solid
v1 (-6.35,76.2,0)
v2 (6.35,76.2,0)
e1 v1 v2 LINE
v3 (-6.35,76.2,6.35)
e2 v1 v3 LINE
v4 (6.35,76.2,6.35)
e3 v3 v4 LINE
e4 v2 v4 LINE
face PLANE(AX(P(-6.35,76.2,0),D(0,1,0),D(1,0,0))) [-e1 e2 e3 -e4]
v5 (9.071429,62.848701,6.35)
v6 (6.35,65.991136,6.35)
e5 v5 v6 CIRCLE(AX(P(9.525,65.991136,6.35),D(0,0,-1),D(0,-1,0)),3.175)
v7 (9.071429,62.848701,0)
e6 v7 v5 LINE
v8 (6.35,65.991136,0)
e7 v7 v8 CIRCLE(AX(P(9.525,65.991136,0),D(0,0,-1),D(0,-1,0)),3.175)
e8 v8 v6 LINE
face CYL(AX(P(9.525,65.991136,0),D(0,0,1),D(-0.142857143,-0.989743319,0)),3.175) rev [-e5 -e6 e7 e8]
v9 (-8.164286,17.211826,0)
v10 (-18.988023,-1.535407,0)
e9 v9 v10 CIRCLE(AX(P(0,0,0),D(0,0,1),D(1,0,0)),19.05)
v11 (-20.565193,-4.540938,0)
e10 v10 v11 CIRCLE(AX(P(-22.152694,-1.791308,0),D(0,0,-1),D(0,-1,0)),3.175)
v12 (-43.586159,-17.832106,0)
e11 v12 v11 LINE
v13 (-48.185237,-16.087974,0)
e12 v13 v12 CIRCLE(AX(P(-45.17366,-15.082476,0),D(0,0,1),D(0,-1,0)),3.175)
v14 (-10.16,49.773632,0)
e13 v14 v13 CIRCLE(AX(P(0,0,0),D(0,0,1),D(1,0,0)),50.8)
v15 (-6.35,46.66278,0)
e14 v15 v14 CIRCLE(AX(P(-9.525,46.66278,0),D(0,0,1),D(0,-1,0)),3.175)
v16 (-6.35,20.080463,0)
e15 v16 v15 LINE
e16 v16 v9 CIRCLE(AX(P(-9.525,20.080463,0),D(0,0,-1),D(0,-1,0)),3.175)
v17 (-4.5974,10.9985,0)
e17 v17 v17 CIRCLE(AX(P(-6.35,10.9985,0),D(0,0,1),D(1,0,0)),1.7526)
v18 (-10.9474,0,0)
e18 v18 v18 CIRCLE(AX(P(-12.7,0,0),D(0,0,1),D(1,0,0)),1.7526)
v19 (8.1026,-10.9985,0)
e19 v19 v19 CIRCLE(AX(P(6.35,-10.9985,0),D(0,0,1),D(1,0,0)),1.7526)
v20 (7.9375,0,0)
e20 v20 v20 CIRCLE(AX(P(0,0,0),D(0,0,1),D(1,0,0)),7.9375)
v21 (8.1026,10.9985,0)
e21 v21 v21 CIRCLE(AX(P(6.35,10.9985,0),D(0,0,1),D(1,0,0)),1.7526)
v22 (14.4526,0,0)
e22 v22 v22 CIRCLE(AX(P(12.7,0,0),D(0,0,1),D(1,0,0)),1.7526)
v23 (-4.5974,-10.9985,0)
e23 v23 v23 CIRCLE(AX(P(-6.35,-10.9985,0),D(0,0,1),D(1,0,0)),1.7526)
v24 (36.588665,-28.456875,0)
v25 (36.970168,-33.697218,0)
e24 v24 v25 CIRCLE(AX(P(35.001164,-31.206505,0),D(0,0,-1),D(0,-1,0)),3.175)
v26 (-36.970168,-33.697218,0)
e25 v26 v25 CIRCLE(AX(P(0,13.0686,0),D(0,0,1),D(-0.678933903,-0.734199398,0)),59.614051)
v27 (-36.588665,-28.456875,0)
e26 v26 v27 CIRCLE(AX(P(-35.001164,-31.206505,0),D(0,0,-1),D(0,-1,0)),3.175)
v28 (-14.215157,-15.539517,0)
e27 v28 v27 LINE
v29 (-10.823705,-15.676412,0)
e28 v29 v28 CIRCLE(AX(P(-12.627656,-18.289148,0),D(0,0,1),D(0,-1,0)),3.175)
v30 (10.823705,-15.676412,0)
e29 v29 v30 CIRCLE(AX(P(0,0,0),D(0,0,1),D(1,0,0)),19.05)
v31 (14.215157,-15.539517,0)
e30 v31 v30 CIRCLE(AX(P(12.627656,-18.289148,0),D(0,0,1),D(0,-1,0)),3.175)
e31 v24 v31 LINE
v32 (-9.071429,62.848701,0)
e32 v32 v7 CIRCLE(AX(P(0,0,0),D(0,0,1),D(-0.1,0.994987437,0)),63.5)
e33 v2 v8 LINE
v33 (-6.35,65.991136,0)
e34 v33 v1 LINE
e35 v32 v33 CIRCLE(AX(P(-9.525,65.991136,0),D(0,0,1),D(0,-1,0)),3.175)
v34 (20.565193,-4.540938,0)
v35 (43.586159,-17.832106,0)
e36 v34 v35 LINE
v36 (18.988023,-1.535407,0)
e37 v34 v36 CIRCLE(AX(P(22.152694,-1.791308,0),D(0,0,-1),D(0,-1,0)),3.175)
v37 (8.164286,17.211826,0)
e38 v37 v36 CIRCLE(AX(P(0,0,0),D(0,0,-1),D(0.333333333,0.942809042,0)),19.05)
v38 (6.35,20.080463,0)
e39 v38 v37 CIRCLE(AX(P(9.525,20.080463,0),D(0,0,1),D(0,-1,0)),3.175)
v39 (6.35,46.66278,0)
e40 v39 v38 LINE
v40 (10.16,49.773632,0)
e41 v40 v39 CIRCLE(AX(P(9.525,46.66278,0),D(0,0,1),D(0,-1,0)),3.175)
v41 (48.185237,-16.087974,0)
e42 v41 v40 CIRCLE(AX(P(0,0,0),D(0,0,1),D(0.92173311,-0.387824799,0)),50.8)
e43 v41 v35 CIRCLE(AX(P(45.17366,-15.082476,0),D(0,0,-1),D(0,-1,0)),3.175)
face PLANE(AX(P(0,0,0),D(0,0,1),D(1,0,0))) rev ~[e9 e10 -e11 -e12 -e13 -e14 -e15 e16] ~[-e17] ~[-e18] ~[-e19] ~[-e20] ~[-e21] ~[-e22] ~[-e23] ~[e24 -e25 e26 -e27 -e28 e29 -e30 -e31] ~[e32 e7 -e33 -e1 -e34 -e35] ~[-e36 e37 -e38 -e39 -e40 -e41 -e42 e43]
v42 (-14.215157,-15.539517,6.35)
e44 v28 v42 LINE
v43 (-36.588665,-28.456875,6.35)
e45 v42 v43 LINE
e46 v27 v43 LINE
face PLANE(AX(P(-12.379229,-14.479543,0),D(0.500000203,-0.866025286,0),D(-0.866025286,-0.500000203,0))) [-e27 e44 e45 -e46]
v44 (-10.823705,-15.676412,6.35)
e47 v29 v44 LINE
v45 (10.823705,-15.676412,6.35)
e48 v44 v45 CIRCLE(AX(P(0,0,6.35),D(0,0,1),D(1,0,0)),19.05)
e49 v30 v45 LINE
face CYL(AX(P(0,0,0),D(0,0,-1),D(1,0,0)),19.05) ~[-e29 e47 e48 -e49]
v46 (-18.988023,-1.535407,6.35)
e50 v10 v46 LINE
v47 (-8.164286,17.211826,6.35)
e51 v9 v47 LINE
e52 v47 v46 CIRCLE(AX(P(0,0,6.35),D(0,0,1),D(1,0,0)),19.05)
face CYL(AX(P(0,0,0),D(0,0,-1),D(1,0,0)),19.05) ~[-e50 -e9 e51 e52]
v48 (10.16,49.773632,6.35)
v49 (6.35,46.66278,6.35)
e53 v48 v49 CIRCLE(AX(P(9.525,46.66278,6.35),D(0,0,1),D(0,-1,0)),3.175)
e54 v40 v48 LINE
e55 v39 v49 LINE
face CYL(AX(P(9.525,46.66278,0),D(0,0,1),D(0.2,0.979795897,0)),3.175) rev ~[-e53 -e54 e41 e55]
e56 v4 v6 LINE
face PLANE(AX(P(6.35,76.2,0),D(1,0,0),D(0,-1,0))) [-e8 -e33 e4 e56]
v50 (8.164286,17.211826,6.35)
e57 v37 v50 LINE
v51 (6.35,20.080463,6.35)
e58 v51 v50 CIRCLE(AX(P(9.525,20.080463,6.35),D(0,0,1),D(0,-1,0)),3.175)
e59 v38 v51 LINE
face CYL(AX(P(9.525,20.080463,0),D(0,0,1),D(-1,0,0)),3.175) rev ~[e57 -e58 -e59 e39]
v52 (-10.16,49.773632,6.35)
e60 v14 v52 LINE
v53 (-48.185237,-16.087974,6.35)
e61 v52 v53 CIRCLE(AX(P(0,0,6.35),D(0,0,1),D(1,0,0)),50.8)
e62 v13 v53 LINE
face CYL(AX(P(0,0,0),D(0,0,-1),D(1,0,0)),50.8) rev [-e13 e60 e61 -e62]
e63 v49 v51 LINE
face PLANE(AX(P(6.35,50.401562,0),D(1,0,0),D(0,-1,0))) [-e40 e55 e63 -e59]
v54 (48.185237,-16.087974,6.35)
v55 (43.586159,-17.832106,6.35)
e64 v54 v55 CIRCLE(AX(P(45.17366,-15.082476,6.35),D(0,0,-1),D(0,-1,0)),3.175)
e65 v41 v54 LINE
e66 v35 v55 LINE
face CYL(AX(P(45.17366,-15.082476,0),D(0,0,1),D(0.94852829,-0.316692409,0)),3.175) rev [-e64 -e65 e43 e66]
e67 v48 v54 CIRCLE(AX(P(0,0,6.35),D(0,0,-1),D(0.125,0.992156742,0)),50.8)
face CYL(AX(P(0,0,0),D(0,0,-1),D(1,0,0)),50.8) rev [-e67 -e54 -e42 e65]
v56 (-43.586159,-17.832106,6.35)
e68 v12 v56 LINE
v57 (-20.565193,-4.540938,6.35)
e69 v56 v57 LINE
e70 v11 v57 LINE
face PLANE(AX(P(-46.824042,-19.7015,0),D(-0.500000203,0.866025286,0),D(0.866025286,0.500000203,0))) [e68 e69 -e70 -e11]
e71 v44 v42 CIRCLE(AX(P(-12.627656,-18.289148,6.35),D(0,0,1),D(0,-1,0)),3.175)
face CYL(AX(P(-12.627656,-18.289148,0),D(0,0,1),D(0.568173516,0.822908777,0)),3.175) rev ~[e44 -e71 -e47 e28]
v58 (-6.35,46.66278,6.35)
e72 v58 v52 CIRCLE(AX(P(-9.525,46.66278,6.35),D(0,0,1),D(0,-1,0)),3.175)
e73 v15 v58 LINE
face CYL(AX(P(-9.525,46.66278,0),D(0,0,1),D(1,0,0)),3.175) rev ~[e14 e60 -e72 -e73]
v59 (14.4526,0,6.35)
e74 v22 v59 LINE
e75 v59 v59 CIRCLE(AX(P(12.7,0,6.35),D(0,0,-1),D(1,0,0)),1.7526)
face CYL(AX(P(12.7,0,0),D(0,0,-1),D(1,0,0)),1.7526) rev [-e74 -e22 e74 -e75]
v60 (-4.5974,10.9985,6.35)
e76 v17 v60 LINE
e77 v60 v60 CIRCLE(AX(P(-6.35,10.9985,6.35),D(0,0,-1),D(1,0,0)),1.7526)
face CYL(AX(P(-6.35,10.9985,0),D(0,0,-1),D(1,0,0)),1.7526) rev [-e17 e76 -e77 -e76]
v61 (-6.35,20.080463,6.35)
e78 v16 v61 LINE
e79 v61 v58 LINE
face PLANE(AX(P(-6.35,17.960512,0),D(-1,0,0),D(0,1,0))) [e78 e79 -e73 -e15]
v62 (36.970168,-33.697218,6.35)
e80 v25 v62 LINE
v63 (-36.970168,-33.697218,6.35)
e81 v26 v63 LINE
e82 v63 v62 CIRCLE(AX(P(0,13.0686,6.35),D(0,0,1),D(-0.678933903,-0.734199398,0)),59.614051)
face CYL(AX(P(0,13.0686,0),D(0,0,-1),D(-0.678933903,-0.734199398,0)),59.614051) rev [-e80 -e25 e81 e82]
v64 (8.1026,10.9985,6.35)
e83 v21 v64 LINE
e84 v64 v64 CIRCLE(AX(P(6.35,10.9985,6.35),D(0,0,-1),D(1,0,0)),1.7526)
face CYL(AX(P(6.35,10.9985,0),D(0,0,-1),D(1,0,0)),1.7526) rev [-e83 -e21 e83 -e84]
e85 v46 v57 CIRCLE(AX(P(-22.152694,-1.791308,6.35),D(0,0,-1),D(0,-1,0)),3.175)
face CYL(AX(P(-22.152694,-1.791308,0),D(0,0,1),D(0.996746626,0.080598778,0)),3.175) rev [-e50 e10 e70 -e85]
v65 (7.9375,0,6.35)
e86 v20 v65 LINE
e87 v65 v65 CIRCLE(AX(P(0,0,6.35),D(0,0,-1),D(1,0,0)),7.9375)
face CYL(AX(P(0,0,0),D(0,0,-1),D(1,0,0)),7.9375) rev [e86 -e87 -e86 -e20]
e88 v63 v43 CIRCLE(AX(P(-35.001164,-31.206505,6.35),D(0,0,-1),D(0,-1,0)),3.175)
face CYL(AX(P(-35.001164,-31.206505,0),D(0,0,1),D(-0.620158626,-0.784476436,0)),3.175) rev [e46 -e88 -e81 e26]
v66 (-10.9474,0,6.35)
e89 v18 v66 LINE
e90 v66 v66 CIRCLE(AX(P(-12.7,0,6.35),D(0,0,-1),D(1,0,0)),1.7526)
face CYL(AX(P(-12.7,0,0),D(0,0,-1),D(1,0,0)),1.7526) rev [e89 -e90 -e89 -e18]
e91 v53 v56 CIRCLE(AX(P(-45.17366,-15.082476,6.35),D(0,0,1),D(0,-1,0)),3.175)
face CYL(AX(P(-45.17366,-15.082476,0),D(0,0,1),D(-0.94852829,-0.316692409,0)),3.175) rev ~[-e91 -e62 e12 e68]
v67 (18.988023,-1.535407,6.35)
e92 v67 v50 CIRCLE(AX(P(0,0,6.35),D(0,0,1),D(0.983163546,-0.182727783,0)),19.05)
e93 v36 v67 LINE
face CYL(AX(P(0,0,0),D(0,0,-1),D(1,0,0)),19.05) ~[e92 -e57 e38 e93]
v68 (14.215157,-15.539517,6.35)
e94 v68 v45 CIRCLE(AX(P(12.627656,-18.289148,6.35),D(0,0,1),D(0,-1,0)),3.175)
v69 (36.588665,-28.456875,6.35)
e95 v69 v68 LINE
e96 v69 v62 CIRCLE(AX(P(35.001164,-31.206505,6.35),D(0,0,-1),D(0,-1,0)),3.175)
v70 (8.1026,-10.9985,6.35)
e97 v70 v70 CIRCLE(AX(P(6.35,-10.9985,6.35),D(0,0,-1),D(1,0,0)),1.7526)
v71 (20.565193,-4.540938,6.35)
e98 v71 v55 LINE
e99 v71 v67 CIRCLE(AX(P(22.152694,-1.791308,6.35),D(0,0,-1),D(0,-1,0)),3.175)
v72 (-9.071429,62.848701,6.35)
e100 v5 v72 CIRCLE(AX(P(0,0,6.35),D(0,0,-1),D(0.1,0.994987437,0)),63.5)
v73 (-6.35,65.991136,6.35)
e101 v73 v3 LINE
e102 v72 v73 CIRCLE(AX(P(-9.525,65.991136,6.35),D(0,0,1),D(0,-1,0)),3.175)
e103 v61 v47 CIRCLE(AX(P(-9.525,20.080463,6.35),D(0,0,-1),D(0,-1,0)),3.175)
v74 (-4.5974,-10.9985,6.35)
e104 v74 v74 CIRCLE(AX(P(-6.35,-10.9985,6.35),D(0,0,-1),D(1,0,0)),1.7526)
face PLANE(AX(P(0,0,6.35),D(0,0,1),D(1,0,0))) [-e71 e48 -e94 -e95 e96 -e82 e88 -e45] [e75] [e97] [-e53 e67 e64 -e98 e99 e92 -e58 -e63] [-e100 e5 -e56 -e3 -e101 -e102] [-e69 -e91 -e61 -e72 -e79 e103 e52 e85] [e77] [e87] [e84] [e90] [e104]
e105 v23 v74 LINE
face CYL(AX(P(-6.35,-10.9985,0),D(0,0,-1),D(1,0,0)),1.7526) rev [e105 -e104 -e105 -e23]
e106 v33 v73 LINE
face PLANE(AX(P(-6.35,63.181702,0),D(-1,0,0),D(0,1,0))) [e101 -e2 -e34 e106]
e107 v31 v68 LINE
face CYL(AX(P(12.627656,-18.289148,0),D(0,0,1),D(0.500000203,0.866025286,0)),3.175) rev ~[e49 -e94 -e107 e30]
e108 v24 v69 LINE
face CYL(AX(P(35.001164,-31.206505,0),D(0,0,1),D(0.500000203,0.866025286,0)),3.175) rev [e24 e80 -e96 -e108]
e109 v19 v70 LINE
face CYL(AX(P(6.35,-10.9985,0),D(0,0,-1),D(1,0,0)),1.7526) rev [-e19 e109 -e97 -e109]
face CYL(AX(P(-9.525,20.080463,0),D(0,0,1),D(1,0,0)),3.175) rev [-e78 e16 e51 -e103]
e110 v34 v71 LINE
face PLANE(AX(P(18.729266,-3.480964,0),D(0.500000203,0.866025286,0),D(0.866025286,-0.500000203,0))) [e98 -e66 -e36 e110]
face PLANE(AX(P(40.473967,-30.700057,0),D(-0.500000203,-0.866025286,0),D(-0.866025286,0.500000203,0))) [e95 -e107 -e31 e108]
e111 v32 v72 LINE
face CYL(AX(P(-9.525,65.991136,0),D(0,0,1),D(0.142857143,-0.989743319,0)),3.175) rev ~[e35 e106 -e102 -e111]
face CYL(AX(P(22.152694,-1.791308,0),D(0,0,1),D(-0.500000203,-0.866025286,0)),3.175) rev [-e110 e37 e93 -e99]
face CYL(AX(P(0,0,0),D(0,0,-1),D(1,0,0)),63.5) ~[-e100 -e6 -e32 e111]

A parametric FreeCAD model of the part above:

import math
import FreeCAD as App
import Part
import Sketcher
Q = App.Units.Quantity


def edges_at(feature, points):
    """Names of the edges that pass closest to the given points."""
    edges = feature.Shape.Edges
    near = lambda p: min(range(len(edges)), key=lambda i: edges[i].distToShape(Part.Vertex(*p))[0])
    return sorted({f"Edge{near(p) + 1}" for p in points})

doc = App.newDocument("Part")
params = doc.addObject("Spreadsheet::Sheet", "Params")
for row, (alias, value) in enumerate([
    ("sketch1_radius", "2.5 in"),
    ("sketch1_radius2", "0.75 in"),
    ("sketch1_diameter", "0.138 in"),
    ("sketch1_diameter2", "0.625 in"),
    ("sketch1_width", "0.5 in"),
    ("pad1_length", "0.25 in"),
    ("fillet_radius", "0.125 in"),
], start=1):
    params.set(f"A{row}", alias)
    params.set(f"B{row}", "=" + value)
    params.setAlias(f"B{row}", alias)

body = doc.addObject("PartDesign::Body", "Body")

sketch1 = body.newObject("Sketcher::SketchObject", "Sketch")
sketch1.AttachmentSupport = (doc.getObject("XY_Plane"), [""])
sketch1.MapMode = "FlatFace"
sketch1.addGeometry([
    Part.LineSegment(App.Vector(6.35, 63.181702, 0), App.Vector(6.35, 76.2, 0)),
    Part.LineSegment(App.Vector(6.35, 76.2, 0), App.Vector(-6.35, 76.2, 0)),
    Part.LineSegment(App.Vector(-6.35, 76.2, 0), App.Vector(-6.35, 63.181702, 0)),
    Part.ArcOfCircle(Part.Circle(App.Vector(0, 0, 0), App.Vector(0, 0, 1), 63.5), math.radians(95.73917), math.radians(444.26083)),
    Part.LineSegment(App.Vector(46.824042, -19.7015, 0), App.Vector(18.729266, -3.480964, 0)),
    Part.ArcOfCircle(Part.Circle(App.Vector(0, 0, 0), App.Vector(0, 0, 1), 19.05), math.radians(-10.528686), math.radians(70.528779)),
    Part.LineSegment(App.Vector(6.35, 17.960512, 0), App.Vector(6.35, 50.401562, 0)),
    Part.ArcOfCircle(Part.Circle(App.Vector(0, 0, 0), App.Vector(0, 0, 1), 50.8), math.radians(-22.81922), math.radians(82.819244)),
    Part.LineSegment(App.Vector(12.379229, -14.479543, 0), App.Vector(40.473967, -30.700057, 0)),
    Part.ArcOfCircle(Part.Circle(App.Vector(0, 13.0686, 0), App.Vector(0, 0, 1), 59.614051), math.radians(-132.760391), math.radians(-47.239609)),
    Part.LineSegment(App.Vector(-40.473967, -30.700057, 0), App.Vector(-12.379229, -14.479543, 0)),
    Part.ArcOfCircle(Part.Circle(App.Vector(0, 0, 0), App.Vector(0, 0, 1), 19.05), math.radians(-130.528659), math.radians(-49.471341)),
    Part.LineSegment(App.Vector(-6.35, 50.401562, 0), App.Vector(-6.35, 17.960512, 0)),
    Part.ArcOfCircle(Part.Circle(App.Vector(0, 0, 0), App.Vector(0, 0, 1), 19.05), math.radians(109.471221), math.radians(190.528686)),
    Part.LineSegment(App.Vector(-18.729266, -3.480964, 0), App.Vector(-46.824042, -19.7015, 0)),
    Part.ArcOfCircle(Part.Circle(App.Vector(0, 0, 0), App.Vector(0, 0, 1), 50.8), math.radians(97.180756), math.radians(202.81922)),
    Part.Circle(App.Vector(6.35, -10.9985, 0), App.Vector(0, 0, 1), 1.7526),
    Part.Circle(App.Vector(0, 0, 0), App.Vector(0, 0, 1), 7.9375),
    Part.Circle(App.Vector(12.7, 0, 0), App.Vector(0, 0, 1), 1.7526),
    Part.Circle(App.Vector(6.35, 10.9985, 0), App.Vector(0, 0, 1), 1.7526),
    Part.Circle(App.Vector(-6.35, 10.9985, 0), App.Vector(0, 0, 1), 1.7526),
    Part.Circle(App.Vector(-6.35, -10.9985, 0), App.Vector(0, 0, 1), 1.7526),
    Part.Circle(App.Vector(-12.7, 0, 0), App.Vector(0, 0, 1), 1.7526),
], False)
sketch1.addConstraint([
    Sketcher.Constraint("Coincident", 0, 2, 1, 1),
    Sketcher.Constraint("Coincident", 1, 2, 2, 1),
    Sketcher.Constraint("Coincident", 2, 2, 3, 1),
    Sketcher.Constraint("Coincident", 3, 2, 0, 1),
    Sketcher.Constraint("Coincident", 4, 2, 5, 1),
    Sketcher.Constraint("Coincident", 5, 2, 6, 1),
    Sketcher.Constraint("Coincident", 6, 2, 7, 2),
    Sketcher.Constraint("Coincident", 7, 1, 4, 1),
    Sketcher.Constraint("Coincident", 8, 2, 9, 2),
    Sketcher.Constraint("Coincident", 9, 1, 10, 1),
    Sketcher.Constraint("Coincident", 10, 2, 11, 1),
    Sketcher.Constraint("Coincident", 11, 2, 8, 1),
    Sketcher.Constraint("Coincident", 12, 2, 13, 1),
    Sketcher.Constraint("Coincident", 13, 2, 14, 1),
    Sketcher.Constraint("Coincident", 14, 2, 15, 2),
    Sketcher.Constraint("Coincident", 15, 1, 12, 1),
    Sketcher.Constraint("Vertical", 0),
    Sketcher.Constraint("Horizontal", 1),
    Sketcher.Constraint("Vertical", 2),
    Sketcher.Constraint("Vertical", 6),
    Sketcher.Constraint("Vertical", 12),
    Sketcher.Constraint("Coincident", 3, 3, -1, 1),
    Sketcher.Constraint("Coincident", 5, 3, -1, 1),
    Sketcher.Constraint("Coincident", 7, 3, -1, 1),
    Sketcher.Constraint("Coincident", 11, 3, -1, 1),
    Sketcher.Constraint("Coincident", 13, 3, -1, 1),
    Sketcher.Constraint("Coincident", 15, 3, -1, 1),
    Sketcher.Constraint("Coincident", 17, 3, -1, 1),
    Sketcher.Constraint("Equal", 5, 11),
    Sketcher.Constraint("Equal", 11, 13),
    Sketcher.Constraint("Equal", 7, 15),
    Sketcher.Constraint("Equal", 16, 18),
    Sketcher.Constraint("Equal", 18, 19),
    Sketcher.Constraint("Equal", 19, 20),
    Sketcher.Constraint("Equal", 20, 21),
    Sketcher.Constraint("Equal", 21, 22),
    Sketcher.Constraint("Symmetric", 16, 3, 20, 3, -1, 1),
    Sketcher.Constraint("Symmetric", 19, 3, 21, 3, -1, 1),
    Sketcher.Constraint("Symmetric", 18, 3, 22, 3, -1, 1),
    Sketcher.Constraint("Symmetric", 19, 3, 20, 3, -2),
    Sketcher.Constraint("Symmetric", 8, 2, 9, 1, -2),
    Sketcher.Constraint("PointOnObject", 18, 3, -1),
    Sketcher.Constraint("Parallel", 4, 8),
    Sketcher.Constraint("Parallel", 10, 14),
    Sketcher.Constraint("Horizontal", 2, 2, 3, 2),
    Sketcher.Constraint("Horizontal", 10, 2, 11, 2),
    Sketcher.Constraint("Horizontal", 5, 2, 12, 2),
    Sketcher.Constraint("Horizontal", 4, 2, 13, 2),
    Sketcher.Constraint("Vertical", 19, 3, 0, 2),
    Sketcher.Constraint("Vertical", 3, 2, 5, 2),
    Sketcher.Constraint("Equal", 4, 8),
    Sketcher.Constraint("Radius", 3, Q("2.5 in")),
    Sketcher.Constraint("Radius", 5, Q("0.75 in")),
    Sketcher.Constraint("Diameter", 16, Q("0.138 in")),
    Sketcher.Constraint("Diameter", 17, Q("0.625 in")),
    Sketcher.Constraint("DistanceX", 1, 2, 1, 1, Q("0.5 in")),
    Sketcher.Constraint("DistanceY", -1, 1, 0, 2, Q("3 in")),
    Sketcher.Constraint("Angle", 8, Q("-30 deg")),
    Sketcher.Constraint("Radius", 7, Q("2 in")),
    Sketcher.Constraint("DistanceX", -1, 1, 18, 3, Q("0.5 in")),
    Sketcher.Constraint("DistanceX", 8, 2, 7, 1, Q("0.25 in")),
    Sketcher.Constraint("Radius", 9, Q("2.347 in")),
    Sketcher.Constraint("DistanceY", 16, 3, -1, 1, Q("0.433 in")),
    Sketcher.Constraint("DistanceY", 9, 1, 14, 2, Q("0.433 in")),
])
sketch1.setExpression("Constraints[51]", "Params.sketch1_radius")
sketch1.setExpression("Constraints[52]", "Params.sketch1_radius2")
sketch1.setExpression("Constraints[53]", "Params.sketch1_diameter")
sketch1.setExpression("Constraints[54]", "Params.sketch1_diameter2")
sketch1.setExpression("Constraints[55]", "Params.sketch1_width")
pad1 = body.newObject("PartDesign::Pad", "Pad")
pad1.Profile = sketch1
pad1.setExpression("Length", "Params.pad1_length")
doc.recompute()

fillet = body.newObject("PartDesign::Fillet", "Fillet")
fillet.Base = (pad1, edges_at(pad1, [
    (6.35, 50.402, 3.175),
    (6.35, 17.96, 3.175),
    (18.729, -3.481, 3.175),
    (46.824, -19.701, 3.175),
    (12.379, -14.479, 3.175),
    (-12.379, -14.479, 3.175),
    (-18.729, -3.481, 3.175),
    (-6.35, 17.96, 3.175),
    (-46.824, -19.701, 3.175),
    (-6.35, 50.402, 3.175),
    (-6.35, 63.182, 3.175),
    (6.35, 63.182, 3.175),
    (40.474, -30.7, 3.175),
    (-40.474, -30.7, 3.175),
]))
fillet.setExpression("Radius", "Params.fillet_radius")

doc.recompute()
